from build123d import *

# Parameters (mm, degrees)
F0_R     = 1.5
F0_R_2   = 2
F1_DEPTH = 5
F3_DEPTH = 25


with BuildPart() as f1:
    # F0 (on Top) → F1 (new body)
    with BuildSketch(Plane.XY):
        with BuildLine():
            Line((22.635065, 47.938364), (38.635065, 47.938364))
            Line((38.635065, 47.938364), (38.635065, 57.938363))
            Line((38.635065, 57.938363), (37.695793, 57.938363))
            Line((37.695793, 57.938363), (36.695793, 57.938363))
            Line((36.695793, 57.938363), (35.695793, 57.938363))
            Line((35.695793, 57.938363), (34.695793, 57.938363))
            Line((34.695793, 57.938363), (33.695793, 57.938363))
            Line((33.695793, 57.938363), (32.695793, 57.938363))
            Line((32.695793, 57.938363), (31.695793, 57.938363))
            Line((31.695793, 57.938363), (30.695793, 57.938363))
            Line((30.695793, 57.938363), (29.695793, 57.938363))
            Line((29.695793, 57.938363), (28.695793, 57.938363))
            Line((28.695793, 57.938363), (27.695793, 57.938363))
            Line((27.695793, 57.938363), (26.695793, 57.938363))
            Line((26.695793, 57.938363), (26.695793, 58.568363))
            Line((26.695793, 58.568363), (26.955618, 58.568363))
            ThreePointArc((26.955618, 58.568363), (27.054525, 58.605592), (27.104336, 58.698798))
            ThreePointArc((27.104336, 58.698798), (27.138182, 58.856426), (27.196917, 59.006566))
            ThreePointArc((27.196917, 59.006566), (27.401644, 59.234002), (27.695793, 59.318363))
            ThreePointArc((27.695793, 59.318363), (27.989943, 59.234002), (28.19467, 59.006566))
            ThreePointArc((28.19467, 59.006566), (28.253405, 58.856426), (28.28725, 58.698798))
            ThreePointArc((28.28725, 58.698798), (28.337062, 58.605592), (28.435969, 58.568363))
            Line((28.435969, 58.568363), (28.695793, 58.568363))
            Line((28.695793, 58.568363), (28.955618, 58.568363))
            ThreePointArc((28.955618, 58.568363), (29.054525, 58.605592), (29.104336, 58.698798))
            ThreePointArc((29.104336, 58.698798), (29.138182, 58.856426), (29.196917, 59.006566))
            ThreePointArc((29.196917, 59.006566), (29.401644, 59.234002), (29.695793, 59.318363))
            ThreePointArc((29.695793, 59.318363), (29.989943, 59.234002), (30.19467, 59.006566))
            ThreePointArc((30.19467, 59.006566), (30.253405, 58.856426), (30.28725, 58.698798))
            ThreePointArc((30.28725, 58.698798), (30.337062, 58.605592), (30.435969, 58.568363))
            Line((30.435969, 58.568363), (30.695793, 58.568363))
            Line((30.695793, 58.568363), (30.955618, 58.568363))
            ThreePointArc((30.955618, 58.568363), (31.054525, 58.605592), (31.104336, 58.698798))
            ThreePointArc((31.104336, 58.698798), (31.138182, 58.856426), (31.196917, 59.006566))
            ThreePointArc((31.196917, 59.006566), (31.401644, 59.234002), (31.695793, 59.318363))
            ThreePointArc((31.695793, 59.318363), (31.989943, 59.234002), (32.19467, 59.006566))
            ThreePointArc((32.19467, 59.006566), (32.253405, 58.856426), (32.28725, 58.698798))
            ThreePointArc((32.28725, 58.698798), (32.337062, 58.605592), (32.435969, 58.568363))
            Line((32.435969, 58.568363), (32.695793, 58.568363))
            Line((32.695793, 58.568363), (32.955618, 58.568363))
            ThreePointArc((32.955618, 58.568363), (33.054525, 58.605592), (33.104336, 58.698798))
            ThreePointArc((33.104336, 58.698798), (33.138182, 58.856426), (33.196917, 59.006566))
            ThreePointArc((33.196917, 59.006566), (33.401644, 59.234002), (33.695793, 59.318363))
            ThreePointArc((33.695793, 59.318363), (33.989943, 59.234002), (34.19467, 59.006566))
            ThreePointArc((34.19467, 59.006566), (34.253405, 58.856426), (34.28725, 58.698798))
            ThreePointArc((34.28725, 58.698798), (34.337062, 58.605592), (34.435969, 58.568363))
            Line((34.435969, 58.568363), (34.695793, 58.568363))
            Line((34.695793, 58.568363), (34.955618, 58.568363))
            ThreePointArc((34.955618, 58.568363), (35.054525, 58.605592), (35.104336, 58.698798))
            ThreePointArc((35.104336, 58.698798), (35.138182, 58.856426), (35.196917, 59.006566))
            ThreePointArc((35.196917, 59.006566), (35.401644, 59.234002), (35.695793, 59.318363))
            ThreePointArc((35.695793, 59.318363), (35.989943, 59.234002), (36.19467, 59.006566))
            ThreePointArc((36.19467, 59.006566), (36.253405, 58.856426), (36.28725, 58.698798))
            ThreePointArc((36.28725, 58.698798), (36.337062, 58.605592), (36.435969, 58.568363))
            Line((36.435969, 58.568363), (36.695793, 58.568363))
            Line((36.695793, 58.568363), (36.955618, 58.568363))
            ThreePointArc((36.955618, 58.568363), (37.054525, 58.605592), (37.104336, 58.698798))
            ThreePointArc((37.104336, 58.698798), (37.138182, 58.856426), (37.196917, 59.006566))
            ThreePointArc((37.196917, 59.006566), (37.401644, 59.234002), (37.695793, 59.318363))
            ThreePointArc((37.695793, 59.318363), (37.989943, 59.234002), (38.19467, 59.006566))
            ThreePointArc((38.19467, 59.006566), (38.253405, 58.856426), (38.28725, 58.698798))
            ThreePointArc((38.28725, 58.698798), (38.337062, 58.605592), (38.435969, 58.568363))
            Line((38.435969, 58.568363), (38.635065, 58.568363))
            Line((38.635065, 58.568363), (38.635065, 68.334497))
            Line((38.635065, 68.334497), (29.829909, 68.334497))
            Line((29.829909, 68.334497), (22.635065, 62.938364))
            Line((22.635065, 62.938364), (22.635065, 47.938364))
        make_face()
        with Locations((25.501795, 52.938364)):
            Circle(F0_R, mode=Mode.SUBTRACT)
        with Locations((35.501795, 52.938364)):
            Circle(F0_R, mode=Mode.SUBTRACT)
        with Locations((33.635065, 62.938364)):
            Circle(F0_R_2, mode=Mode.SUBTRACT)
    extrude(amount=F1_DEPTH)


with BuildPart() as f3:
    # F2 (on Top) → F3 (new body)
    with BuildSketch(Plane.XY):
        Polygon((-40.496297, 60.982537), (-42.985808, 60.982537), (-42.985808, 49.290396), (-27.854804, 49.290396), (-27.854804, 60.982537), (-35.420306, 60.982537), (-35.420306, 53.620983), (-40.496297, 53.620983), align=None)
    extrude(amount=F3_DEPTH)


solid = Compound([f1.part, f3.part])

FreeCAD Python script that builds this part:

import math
import FreeCAD as App
import Part
import Sketcher

V = App.Vector
Q = App.Units.Quantity


def add_polygon(sketch, points):
    """Adds a closed chain of lines whose ends are joined by coincident constraints."""
    first, n = sketch.GeometryCount, len(points)
    for a, b in zip(points, points[1:] + points[:1]):
        sketch.addGeometry(Part.LineSegment(App.Vector(*a, 0), App.Vector(*b, 0)), False)
    for i in range(n):
        sketch.addConstraint(Sketcher.Constraint("Coincident", first + i, 2, first + (i + 1) % n, 1))

doc = App.newDocument("Part")
params = doc.addObject("Spreadsheet::Sheet", "Params")
for row, (alias, value) in enumerate([
    ("sketch1_diameter", "3 mm"),
    ("sketch1_diameter2", "4 mm"),
    ("sketch1_radius", "0.999999 mm"),
    ("sketch1_width", "16 mm"),
    ("sketch1_height", "9.999999 mm"),
    ("pad1_length", "5 mm"),
    ("pad2_length", "25 mm"),
], start=1):
    params.set(f"A{row}", alias)
    params.set(f"B{row}", "=" + value)
    params.setAlias(f"B{row}", alias)

body = doc.addObject("PartDesign::Body", "Body")

sketch1 = body.newObject("Sketcher::SketchObject", "Sketch")
sketch1.AttachmentSupport = (doc.getObject("XY_Plane"), [""])
sketch1.MapMode = "FlatFace"
sketch1.addGeometry([
    Part.LineSegment(V(22.635065, 47.938364, 0), V(38.635065, 47.938364, 0)),
    Part.LineSegment(V(38.635065, 47.938364, 0), V(38.635065, 57.938363, 0)),
    Part.LineSegment(V(38.635065, 57.938363, 0), V(26.695793, 57.938363, 0)),
    Part.LineSegment(V(26.695793, 57.938363, 0), V(26.695793, 58.568363, 0)),
    Part.LineSegment(V(26.695793, 58.568363, 0), V(26.955618, 58.568363, 0)),
    Part.ArcOfCircle(Part.Circle(V(26.955617, 58.718363, 0), V(0, 0, 1), 0.15), math.radians(-89.9998), math.radians(-7.494619)),
    Part.ArcOfCircle(Part.Circle(V(28.095829, 58.568352, 0), V(0, 0, 1), 1.000037), math.radians(154.011036), math.radians(172.504893)),
    Part.ArcOfCircle(Part.Circle(V(27.695794, 58.763362, 0), V(0, 0, 1), 0.555001), math.radians(90.000093), math.radians(154.010591)),
    Part.ArcOfCircle(Part.Circle(V(27.695793, 58.763362, 0), V(0, 0, 1), 0.555001), math.radians(25.989409), math.radians(90.00001)),
    Part.ArcOfCircle(Part.Circle(V(27.295794, 58.568366, 0), V(0, 0, 1), 0.999999), math.radians(7.494589), math.radians(25.989141)),
    Part.ArcOfCircle(Part.Circle(V(28.43597, 58.718365, 0), V(0, 0, 1), 0.150002), math.radians(-172.504712), math.radians(-90.000487)),
    Part.LineSegment(V(28.435969, 58.568363, 0), V(28.955618, 58.568363, 0)),
    Part.ArcOfCircle(Part.Circle(V(28.955617, 58.718363, 0), V(0, 0, 1), 0.15), math.radians(-89.9998), math.radians(-7.494619)),
    Part.ArcOfCircle(Part.Circle(V(30.095829, 58.568352, 0), V(0, 0, 1), 1.000037), math.radians(154.011036), math.radians(172.504893)),
    Part.ArcOfCircle(Part.Circle(V(29.695794, 58.763362, 0), V(0, 0, 1), 0.555001), math.radians(90.000093), math.radians(154.010591)),
    Part.ArcOfCircle(Part.Circle(V(29.695793, 58.763362, 0), V(0, 0, 1), 0.555001), math.radians(25.989409), math.radians(90.00001)),
    Part.ArcOfCircle(Part.Circle(V(29.295794, 58.568366, 0), V(0, 0, 1), 0.999999), math.radians(7.494589), math.radians(25.989141)),
    Part.ArcOfCircle(Part.Circle(V(30.43597, 58.718365, 0), V(0, 0, 1), 0.150002), math.radians(-172.504712), math.radians(-90.000487)),
    Part.LineSegment(V(30.435969, 58.568363, 0), V(30.955618, 58.568363, 0)),
    Part.ArcOfCircle(Part.Circle(V(30.955617, 58.718363, 0), V(0, 0, 1), 0.15), math.radians(-89.9998), math.radians(-7.494619)),
    Part.ArcOfCircle(Part.Circle(V(32.095829, 58.568352, 0), V(0, 0, 1), 1.000037), math.radians(154.011036), math.radians(172.504893)),
    Part.ArcOfCircle(Part.Circle(V(31.695794, 58.763362, 0), V(0, 0, 1), 0.555001), math.radians(90.000093), math.radians(154.010591)),
    Part.ArcOfCircle(Part.Circle(V(31.695793, 58.763362, 0), V(0, 0, 1), 0.555001), math.radians(25.989409), math.radians(90.00001)),
    Part.ArcOfCircle(Part.Circle(V(31.295794, 58.568366, 0), V(0, 0, 1), 0.999999), math.radians(7.494589), math.radians(25.989141)),
    Part.ArcOfCircle(Part.Circle(V(32.43597, 58.718365, 0), V(0, 0, 1), 0.150002), math.radians(-172.504712), math.radians(-90.000487)),
    Part.LineSegment(V(32.435969, 58.568363, 0), V(32.955618, 58.568363, 0)),
    Part.ArcOfCircle(Part.Circle(V(32.955617, 58.718363, 0), V(0, 0, 1), 0.15), math.radians(-89.9998), math.radians(-7.494619)),
    Part.ArcOfCircle(Part.Circle(V(34.095829, 58.568352, 0), V(0, 0, 1), 1.000037), math.radians(154.011036), math.radians(172.504893)),
    Part.ArcOfCircle(Part.Circle(V(33.695794, 58.763362, 0), V(0, 0, 1), 0.555001), math.radians(90.000093), math.radians(154.010591)),
    Part.ArcOfCircle(Part.Circle(V(33.695793, 58.763362, 0), V(0, 0, 1), 0.555001), math.radians(25.989409), math.radians(90.00001)),
    Part.ArcOfCircle(Part.Circle(V(33.295794, 58.568366, 0), V(0, 0, 1), 0.999999), math.radians(7.494589), math.radians(25.989141)),
    Part.ArcOfCircle(Part.Circle(V(34.43597, 58.718365, 0), V(0, 0, 1), 0.150002), math.radians(-172.504712), math.radians(-90.000487)),
    Part.LineSegment(V(34.435969, 58.568363, 0), V(34.955618, 58.568363, 0)),
    Part.ArcOfCircle(Part.Circle(V(34.955617, 58.718363, 0), V(0, 0, 1), 0.15), math.radians(-89.9998), math.radians(-7.494619)),
    Part.ArcOfCircle(Part.Circle(V(36.095829, 58.568352, 0), V(0, 0, 1), 1.000037), math.radians(154.011036), math.radians(172.504893)),
    Part.ArcOfCircle(Part.Circle(V(35.695794, 58.763362, 0), V(0, 0, 1), 0.555001), math.radians(90.000093), math.radians(154.010591)),
    Part.ArcOfCircle(Part.Circle(V(35.695793, 58.763362, 0), V(0, 0, 1), 0.555001), math.radians(25.989409), math.radians(90.00001)),
    Part.ArcOfCircle(Part.Circle(V(35.295794, 58.568366, 0), V(0, 0, 1), 0.999999), math.radians(7.494589), math.radians(25.989141)),
    Part.ArcOfCircle(Part.Circle(V(36.43597, 58.718365, 0), V(0, 0, 1), 0.150002), math.radians(-172.504712), math.radians(-90.000487)),
    Part.LineSegment(V(36.435969, 58.568363, 0), V(36.955618, 58.568363, 0)),
    Part.ArcOfCircle(Part.Circle(V(36.955617, 58.718363, 0), V(0, 0, 1), 0.15), math.radians(-89.9998), math.radians(-7.494619)),
    Part.ArcOfCircle(Part.Circle(V(38.095829, 58.568352, 0), V(0, 0, 1), 1.000037), math.radians(154.011036), math.radians(172.504893)),
    Part.ArcOfCircle(Part.Circle(V(37.695794, 58.763362, 0), V(0, 0, 1), 0.555001), math.radians(90.000093), math.radians(154.010591)),
    Part.ArcOfCircle(Part.Circle(V(37.695793, 58.763362, 0), V(0, 0, 1), 0.555001), math.radians(25.989409), math.radians(90.00001)),
    Part.ArcOfCircle(Part.Circle(V(37.295794, 58.568366, 0), V(0, 0, 1), 0.999999), math.radians(7.494589), math.radians(25.989141)),
    Part.ArcOfCircle(Part.Circle(V(38.43597, 58.718365, 0), V(0, 0, 1), 0.150002), math.radians(-172.504712), math.radians(-90.000487)),
    Part.LineSegment(V(38.435969, 58.568363, 0), V(38.635065, 58.568363, 0)),
    Part.LineSegment(V(38.635065, 58.568363, 0), V(38.635065, 68.334497, 0)),
    Part.LineSegment(V(38.635065, 68.334497, 0), V(29.829909, 68.334497, 0)),
    Part.LineSegment(V(29.829909, 68.334497, 0), V(22.635065, 62.938364, 0)),
    Part.LineSegment(V(22.635065, 62.938364, 0), V(22.635065, 47.938364, 0)),
    Part.Circle(V(25.501795, 52.938364, 0), V(0, 0, 1), 1.5),
    Part.Circle(V(35.501795, 52.938364, 0), V(0, 0, 1), 1.5),
    Part.Circle(V(33.635065, 62.938364, 0), V(0, 0, 1), 2),
], False)
sketch1.addConstraint([
    Sketcher.Constraint("Coincident", 0, 2, 1, 1),
    Sketcher.Constraint("Coincident", 1, 2, 2, 1),
    Sketcher.Constraint("Coincident", 2, 2, 3, 1),
    Sketcher.Constraint("Coincident", 3, 2, 4, 1),
    Sketcher.Constraint("Coincident", 4, 2, 5, 1),
    Sketcher.Constraint("Coincident", 5, 2, 6, 2),
    Sketcher.Constraint("Coincident", 6, 1, 7, 2),
    Sketcher.Constraint("Tangent", 7, 1, 8, 2),
    Sketcher.Constraint("Coincident", 8, 1, 9, 2),
    Sketcher.Constraint("Coincident", 9, 1, 10, 1),
    Sketcher.Constraint("Coincident", 10, 2, 11, 1),
    Sketcher.Constraint("Coincident", 11, 2, 12, 1),
    Sketcher.Constraint("Coincident", 12, 2, 13, 2),
    Sketcher.Constraint("Coincident", 13, 1, 14, 2),
    Sketcher.Constraint("Tangent", 14, 1, 15, 2),
    Sketcher.Constraint("Coincident", 15, 1, 16, 2),
    Sketcher.Constraint("Coincident", 16, 1, 17, 1),
    Sketcher.Constraint("Coincident", 17, 2, 18, 1),
    Sketcher.Constraint("Coincident", 18, 2, 19, 1),
    Sketcher.Constraint("Coincident", 19, 2, 20, 2),
    Sketcher.Constraint("Coincident", 20, 1, 21, 2),
    Sketcher.Constraint("Tangent", 21, 1, 22, 2),
    Sketcher.Constraint("Coincident", 22, 1, 23, 2),
    Sketcher.Constraint("Coincident", 23, 1, 24, 1),
    Sketcher.Constraint("Coincident", 24, 2, 25, 1),
    Sketcher.Constraint("Coincident", 25, 2, 26, 1),
    Sketcher.Constraint("Coincident", 26, 2, 27, 2),
    Sketcher.Constraint("Coincident", 27, 1, 28, 2),
    Sketcher.Constraint("Tangent", 28, 1, 29, 2),
    Sketcher.Constraint("Coincident", 29, 1, 30, 2),
    Sketcher.Constraint("Coincident", 30, 1, 31, 1),
    Sketcher.Constraint("Coincident", 31, 2, 32, 1),
    Sketcher.Constraint("Coincident", 32, 2, 33, 1),
    Sketcher.Constraint("Coincident", 33, 2, 34, 2),
    Sketcher.Constraint("Coincident", 34, 1, 35, 2),
    Sketcher.Constraint("Tangent", 35, 1, 36, 2),
    Sketcher.Constraint("Coincident", 36, 1, 37, 2),
    Sketcher.Constraint("Coincident", 37, 1, 38, 1),
    Sketcher.Constraint("Coincident", 38, 2, 39, 1),
    Sketcher.Constraint("Coincident", 39, 2, 40, 1),
    Sketcher.Constraint("Coincident", 40, 2, 41, 2),
    Sketcher.Constraint("Coincident", 41, 1, 42, 2),
    Sketcher.Constraint("Tangent", 42, 1, 43, 2),
    Sketcher.Constraint("Coincident", 43, 1, 44, 2),
    Sketcher.Constraint("Coincident", 44, 1, 45, 1),
    Sketcher.Constraint("Coincident", 45, 2, 46, 1),
    Sketcher.Constraint("Coincident", 46, 2, 47, 1),
    Sketcher.Constraint("Coincident", 47, 2, 48, 1),
    Sketcher.Constraint("Coincident", 48, 2, 49, 1),
    Sketcher.Constraint("Coincident", 49, 2, 50, 1),
    Sketcher.Constraint("Coincident", 50, 2, 0, 1),
    Sketcher.Constraint("Horizontal", 0),
    Sketcher.Constraint("Vertical", 1),
    Sketcher.Constraint("Horizontal", 2),
    Sketcher.Constraint("Vertical", 3),
    Sketcher.Constraint("Horizontal", 4),
    Sketcher.Constraint("Horizontal", 11),
    Sketcher.Constraint("Horizontal", 18),
    Sketcher.Constraint("Horizontal", 25),
    Sketcher.Constraint("Horizontal", 32),
    Sketcher.Constraint("Horizontal", 39),
    Sketcher.Constraint("Horizontal", 46),
    Sketcher.Constraint("Vertical", 47),
    Sketcher.Constraint("Horizontal", 48),
    Sketcher.Constraint("Vertical", 50),
    Sketcher.Constraint("Equal", 7, 8),
    Sketcher.Constraint("Equal", 5, 10),
    Sketcher.Constraint("Equal", 10, 12),
    Sketcher.Constraint("Equal", 6, 13),
    Sketcher.Constraint("Equal", 8, 14),
    Sketcher.Constraint("Equal", 14, 15),
    Sketcher.Constraint("Equal", 9, 16),
    Sketcher.Constraint("Equal", 12, 17),
    Sketcher.Constraint("Equal", 17, 19),
    Sketcher.Constraint("Equal", 13, 20),
    Sketcher.Constraint("Equal", 15, 21),
    Sketcher.Constraint("Equal", 21, 22),
    Sketcher.Constraint("Equal", 16, 23),
    Sketcher.Constraint("Equal", 19, 24),
    Sketcher.Constraint("Equal", 24, 26),
    Sketcher.Constraint("Equal", 20, 27),
    Sketcher.Constraint("Equal", 22, 28),
    Sketcher.Constraint("Equal", 28, 29),
    Sketcher.Constraint("Equal", 23, 30),
    Sketcher.Constraint("Equal", 26, 31),
    Sketcher.Constraint("Equal", 31, 33),
    Sketcher.Constraint("Equal", 27, 34),
    Sketcher.Constraint("Equal", 29, 35),
    Sketcher.Constraint("Equal", 35, 36),
    Sketcher.Constraint("Equal", 30, 37),
    Sketcher.Constraint("Equal", 33, 38),
    Sketcher.Constraint("Equal", 38, 40),
    Sketcher.Constraint("Equal", 34, 41),
    Sketcher.Constraint("Equal", 36, 42),
    Sketcher.Constraint("Equal", 42, 43),
    Sketcher.Constraint("Equal", 37, 44),
    Sketcher.Constraint("Equal", 40, 45),
    Sketcher.Constraint("Equal", 51, 52),
    Sketcher.Constraint("Horizontal", 5, 3, 10, 3),
    Sketcher.Constraint("Horizontal", 6, 3, 13, 3),
    Sketcher.Constraint("Horizontal", 8, 3, 14, 3),
    Sketcher.Constraint("Horizontal", 9, 3, 16, 3),
    Sketcher.Constraint("Horizontal", 12, 3, 17, 3),
    Sketcher.Constraint("Horizontal", 13, 3, 20, 3),
    Sketcher.Constraint("Horizontal", 15, 3, 21, 3),
    Sketcher.Constraint("Horizontal", 16, 3, 23, 3),
    Sketcher.Constraint("Horizontal", 19, 3, 24, 3),
    Sketcher.Constraint("Horizontal", 20, 3, 27, 3),
    Sketcher.Constraint("Horizontal", 22, 3, 28, 3),
    Sketcher.Constraint("Horizontal", 23, 3, 30, 3),
    Sketcher.Constraint("Horizontal", 26, 3, 31, 3),
    Sketcher.Constraint("Horizontal", 27, 3, 34, 3),
    Sketcher.Constraint("Horizontal", 29, 3, 35, 3),
    Sketcher.Constraint("Horizontal", 30, 3, 37, 3),
    Sketcher.Constraint("Horizontal", 33, 3, 38, 3),
    Sketcher.Constraint("Horizontal", 34, 3, 41, 3),
    Sketcher.Constraint("Horizontal", 36, 3, 42, 3),
    Sketcher.Constraint("Horizontal", 37, 3, 44, 3),
    Sketcher.Constraint("Horizontal", 40, 3, 45, 3),
    Sketcher.Constraint("Horizontal", 51, 3, 52, 3),
    Sketcher.Constraint("Horizontal", 6, 1, 8, 1),
    Sketcher.Constraint("Horizontal", 5, 2, 9, 1),
    Sketcher.Constraint("Horizontal", 9, 1, 12, 2),
    Sketcher.Constraint("Horizontal", 8, 1, 13, 1),
    Sketcher.Constraint("Horizontal", 13, 1, 15, 1),
    Sketcher.Constraint("Horizontal", 12, 2, 16, 1),
    Sketcher.Constraint("Horizontal", 16, 1, 19, 2),
    Sketcher.Constraint("Horizontal", 15, 1, 20, 1),
    Sketcher.Constraint("Horizontal", 20, 1, 22, 1),
    Sketcher.Constraint("Horizontal", 19, 2, 23, 1),
    Sketcher.Constraint("Horizontal", 23, 1, 26, 2),
    Sketcher.Constraint("Horizontal", 22, 1, 27, 1),
    Sketcher.Constraint("Horizontal", 27, 1, 29, 1),
    Sketcher.Constraint("Horizontal", 26, 2, 30, 1),
    Sketcher.Constraint("Horizontal", 30, 1, 33, 2),
    Sketcher.Constraint("Horizontal", 29, 1, 34, 1),
    Sketcher.Constraint("Horizontal", 34, 1, 36, 1),
    Sketcher.Constraint("Horizontal", 33, 2, 37, 1),
    Sketcher.Constraint("Horizontal", 37, 1, 40, 2),
    Sketcher.Constraint("Horizontal", 36, 1, 41, 1),
    Sketcher.Constraint("Horizontal", 41, 1, 43, 1),
    Sketcher.Constraint("Horizontal", 40, 2, 44, 1),
    Sketcher.Constraint("Horizontal", 53, 3, 49, 2),
    Sketcher.Constraint("Vertical", 5, 3, 4, 2),
    Sketcher.Constraint("Vertical", 8, 3, 7, 1),
    Sketcher.Constraint("Vertical", 12, 3, 11, 2),
    Sketcher.Constraint("Vertical", 15, 3, 14, 1),
    Sketcher.Constraint("Vertical", 19, 3, 18, 2),
    Sketcher.Constraint("Vertical", 22, 3, 21, 1),
    Sketcher.Constraint("Vertical", 26, 3, 25, 2),
    Sketcher.Constraint("Vertical", 29, 3, 28, 1),
    Sketcher.Constraint("Vertical", 33, 3, 32, 2),
    Sketcher.Constraint("Vertical", 36, 3, 35, 1),
    Sketcher.Constraint("Vertical", 40, 3, 39, 2),
    Sketcher.Constraint("Vertical", 43, 3, 42, 1),
    Sketcher.Constraint("Vertical", 1, 2, 46, 2),
    Sketcher.Constraint("Equal", 11, 18),
    Sketcher.Constraint("Equal", 18, 25),
    Sketcher.Constraint("Equal", 25, 32),
    Sketcher.Constraint("Equal", 32, 39),
    Sketcher.Constraint("Diameter", 51, Q("3 mm")),
    Sketcher.Constraint("Diameter", 53, Q("4 mm")),
    Sketcher.Constraint("Radius", 9, Q("0.999999 mm")),
    Sketcher.Constraint("DistanceX", 0, 1, 0, 2, Q("16 mm")),
    Sketcher.Constraint("DistanceY", 1, 1, 1, 2, Q("9.999999 mm")),
    Sketcher.Constraint("DistanceY", 50, 2, 50, 1, Q("15 mm")),
    Sketcher.Constraint("Radius", 5, Q("0.15 mm")),
    Sketcher.Constraint("Radius", 7, Q("0.555001 mm")),
    Sketcher.Constraint("DistanceY", 3, 1, 3, 2, Q("0.63 mm")),
    Sketcher.Constraint("Radius", 6, Q("1.000037 mm")),
    Sketcher.Constraint("DistanceX", 2, 2, 2, 1, Q("11.939272 mm")),
    Sketcher.Constraint("DistanceX", 11, 1, 11, 2, Q("0.519649 mm")),
    Sketcher.Constraint("DistanceY", -1, 1, 5, 2, Q("58.698798 mm")),
    Sketcher.Constraint("DistanceX", 4, 1, 4, 2, Q("0.259825 mm")),
    Sketcher.Constraint("DistanceX", 46, 1, 46, 2, Q("0.199096 mm")),
    Sketcher.Constraint("DistanceX", 48, 2, 48, 1, Q("8.805156 mm")),
    Sketcher.Constraint("DistanceY", 47, 1, 47, 2, Q("9.766134 mm")),
    Sketcher.Constraint("DistanceX", -1, 1, 6, 3, Q("28.095829 mm")),
    Sketcher.Constraint("DistanceY", -1, 1, 6, 3, Q("58.568352 mm")),
    Sketcher.Constraint("DistanceY", -1, 1, 7, 3, Q("58.763362 mm")),
    Sketcher.Constraint("DistanceX", -1, 1, 10, 3, Q("28.43597 mm")),
    Sketcher.Constraint("DistanceX", -1, 1, 13, 3, Q("30.095829 mm")),
    Sketcher.Constraint("DistanceX", -1, 1, 20, 3, Q("32.095829 mm")),
    Sketcher.Constraint("DistanceX", -1, 1, 27, 3, Q("34.095829 mm")),
    Sketcher.Constraint("DistanceX", -1, 1, 34, 3, Q("36.095829 mm")),
    Sketcher.Constraint("DistanceX", -1, 1, 41, 3, Q("38.095829 mm")),
    Sketcher.Constraint("DistanceX", -1, 1, 4, 2, Q("26.955618 mm")),
    Sketcher.Constraint("DistanceX", -1, 1, 8, 1, Q("28.19467 mm")),
    Sketcher.Constraint("DistanceX", -1, 1, 51, 3, Q("25.501795 mm")),
    Sketcher.Constraint("DistanceY", -1, 1, 51, 3, Q("52.938364 mm")),
    Sketcher.Constraint("DistanceX", -1, 1, 52, 3, Q("35.501795 mm")),
    Sketcher.Constraint("DistanceX", -1, 1, 53, 3, Q("33.635065 mm")),
])
sketch1.setExpression("Constraints[160]", "Params.sketch1_diameter")
sketch1.setExpression("Constraints[161]", "Params.sketch1_diameter2")
sketch1.setExpression("Constraints[162]", "Params.sketch1_radius")
sketch1.setExpression("Constraints[163]", "Params.sketch1_width")
sketch1.setExpression("Constraints[164]", "Params.sketch1_height")
pad1 = body.newObject("PartDesign::Pad", "Pad")
pad1.Profile = sketch1
pad1.setExpression("Length", "Params.pad1_length")
body2 = doc.addObject("PartDesign::Body", "Body001")

sketch2 = body2.newObject("Sketcher::SketchObject", "Sketch001")
sketch2.AttachmentSupport = (doc.getObject("XY_Plane001"), [""])
sketch2.MapMode = "FlatFace"
add_polygon(sketch2, [(-40.496297, 60.982537), (-42.985808, 60.982537), (-42.985808, 49.290396), (-27.854804, 49.290396), (-27.854804, 60.982537), (-35.420306, 60.982537), (-35.420306, 53.620983), (-40.496297, 53.620983)])
sketch2.addConstraint([
    Sketcher.Constraint("Horizontal", 0),
    Sketcher.Constraint("Vertical", 1),
    Sketcher.Constraint("Horizontal", 2),
    Sketcher.Constraint("Vertical", 3),
    Sketcher.Constraint("Horizontal", 4),
    Sketcher.Constraint("Vertical", 5),
    Sketcher.Constraint("Horizontal", 6),
    Sketcher.Constraint("Vertical", 7),
    Sketcher.Constraint("Horizontal", 0, 2, 3, 2),
    Sketcher.Constraint("DistanceX", 4, 2, 4, 1, Q("7.565502 mm")),
    Sketcher.Constraint("DistanceX", 0, 2, 0, 1, Q("2.489511 mm")),
    Sketcher.Constraint("DistanceX", 6, 2, 6, 1, Q("5.075991 mm")),
    Sketcher.Constraint("DistanceY", 1, 2, 1, 1, Q("11.692141 mm")),
    Sketcher.Constraint("DistanceY", 5, 2, 5, 1, Q("7.361554 mm")),
    Sketcher.Constraint("DistanceX", 0, 2, -1, 1, Q("42.985808 mm")),
    Sketcher.Constraint("DistanceY", -1, 1, 0, 2, Q("60.982537 mm")),
])
pad2 = body2.newObject("PartDesign::Pad", "Pad001")
pad2.Profile = sketch2
pad2.setExpression("Length", "Params.pad2_length")

doc.recompute()
